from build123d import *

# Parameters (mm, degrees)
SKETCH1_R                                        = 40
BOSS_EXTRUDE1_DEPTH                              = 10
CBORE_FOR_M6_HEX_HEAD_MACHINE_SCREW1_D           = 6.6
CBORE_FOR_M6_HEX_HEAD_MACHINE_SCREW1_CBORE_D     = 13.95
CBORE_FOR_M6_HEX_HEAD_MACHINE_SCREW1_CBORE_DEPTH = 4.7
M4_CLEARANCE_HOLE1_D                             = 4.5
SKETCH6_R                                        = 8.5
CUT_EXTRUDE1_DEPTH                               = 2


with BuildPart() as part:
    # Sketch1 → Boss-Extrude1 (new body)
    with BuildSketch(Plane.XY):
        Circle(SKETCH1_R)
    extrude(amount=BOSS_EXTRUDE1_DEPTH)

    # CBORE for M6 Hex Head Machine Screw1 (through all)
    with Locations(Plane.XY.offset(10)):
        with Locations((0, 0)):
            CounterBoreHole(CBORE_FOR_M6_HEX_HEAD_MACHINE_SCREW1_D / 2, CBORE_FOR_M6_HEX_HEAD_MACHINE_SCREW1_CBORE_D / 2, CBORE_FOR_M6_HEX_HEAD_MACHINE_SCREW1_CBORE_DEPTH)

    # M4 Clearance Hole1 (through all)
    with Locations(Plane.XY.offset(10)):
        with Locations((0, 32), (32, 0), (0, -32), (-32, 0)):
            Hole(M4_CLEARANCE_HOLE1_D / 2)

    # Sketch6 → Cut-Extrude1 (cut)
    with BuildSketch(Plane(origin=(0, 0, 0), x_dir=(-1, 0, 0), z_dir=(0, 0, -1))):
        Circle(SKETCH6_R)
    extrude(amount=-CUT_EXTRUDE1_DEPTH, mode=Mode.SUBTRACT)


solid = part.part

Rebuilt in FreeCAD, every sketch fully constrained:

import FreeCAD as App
import Part
import Sketcher
from FreeCAD import Vector
Q = App.Units.Quantity

doc = App.newDocument("Part")
body = doc.addObject("PartDesign::Body", "Body")

# Sketch on XY plane
sketch1 = body.newObject("Sketcher::SketchObject", "Sketch")
sketch1.AttachmentSupport = (doc.getObject("XY_Plane"), [""])
sketch1.MapMode = "FlatFace"
sketch1.addGeometry(Part.Circle(Vector(0, 0, 0), Vector(0, 0, 1), 40), False)
sketch1.addConstraint(Sketcher.Constraint("Coincident", 0, 3, -1, 1))
sketch1.addConstraint(Sketcher.Constraint("Diameter", 0, Q("80 mm")))
pad1 = body.newObject("PartDesign::Pad", "Pad")
pad1.Profile = sketch1
pad1.Length = 10

# Sketch on XY plane
sketch2 = body.newObject("Sketcher::SketchObject", "Sketch001")
sketch2.AttachmentSupport = (doc.getObject("XY_Plane"), [""])
sketch2.MapMode = "FlatFace"
sketch2.AttachmentOffset = App.Placement(Vector(0, 0, 10), App.Rotation())
sketch2.addGeometry(Part.Circle(Vector(0, 0, 0), Vector(0, 0, 1), 3.3), False)
sketch2.addConstraint(Sketcher.Constraint("Coincident", 0, 3, -1, 1))
sketch2.addConstraint(Sketcher.Constraint("Diameter", 0, Q("6.6 mm")))
doc.recompute()
hole = body.newObject("PartDesign::Hole", "Hole")
hole.Profile = sketch2
hole.ThreadType = "None"
hole.Diameter = 6.6
hole.DepthType = "ThroughAll"
hole.HoleCutType = "Counterbore"
hole.HoleCutDiameter = 13.95
hole.HoleCutDepth = 4.7

# Sketch on XY plane
sketch3 = body.newObject("Sketcher::SketchObject", "Sketch002")
sketch3.AttachmentSupport = (doc.getObject("XY_Plane"), [""])
sketch3.MapMode = "FlatFace"
sketch3.AttachmentOffset = App.Placement(Vector(0, 0, 10), App.Rotation())
sketch3.addGeometry(Part.Circle(Vector(0, 32, 0), Vector(0, 0, 1), 2.25), False)
sketch3.addGeometry(Part.Circle(Vector(32, 0, 0), Vector(0, 0, 1), 2.25), False)
sketch3.addGeometry(Part.Circle(Vector(0, -32, 0), Vector(0, 0, 1), 2.25), False)
sketch3.addGeometry(Part.Circle(Vector(-32, 0, 0), Vector(0, 0, 1), 2.25), False)
sketch3.addConstraint(Sketcher.Constraint("Equal", 0, 1))
sketch3.addConstraint(Sketcher.Constraint("Equal", 1, 2))
sketch3.addConstraint(Sketcher.Constraint("Equal", 2, 3))
sketch3.addConstraint(Sketcher.Constraint("Symmetric", 0, 3, 2, 3, -1, 1))
sketch3.addConstraint(Sketcher.Constraint("Symmetric", 1, 3, 3, 3, -1, 1))
sketch3.addConstraint(Sketcher.Constraint("PointOnObject", 0, 3, -2))
sketch3.addConstraint(Sketcher.Constraint("PointOnObject", 1, 3, -1))
sketch3.addConstraint(Sketcher.Constraint("Diameter", 0, Q("4.5 mm")))
sketch3.addConstraint(Sketcher.Constraint("DistanceY", -1, 1, 0, 3, Q("32 mm")))
sketch3.addConstraint(Sketcher.Constraint("DistanceX", -1, 1, 1, 3, Q("32 mm")))
doc.recompute()
hole2 = body.newObject("PartDesign::Hole", "Hole001")
hole2.Profile = sketch3
hole2.ThreadType = "None"
hole2.Diameter = 4.5
hole2.DepthType = "ThroughAll"

# Sketch on XY plane
sketch4 = body.newObject("Sketcher::SketchObject", "Sketch003")
sketch4.AttachmentSupport = (doc.getObject("XY_Plane"), [""])
sketch4.MapMode = "FlatFace"
sketch4.addGeometry(Part.Circle(Vector(0, 0, 0), Vector(0, 0, 1), 8.5), False)
sketch4.addConstraint(Sketcher.Constraint("Coincident", 0, 3, -1, 1))
sketch4.addConstraint(Sketcher.Constraint("Diameter", 0, Q("17 mm")))
pocket1 = body.newObject("PartDesign::Pocket", "Pocket")
pocket1.Profile = sketch4
pocket1.Length = 2
pocket1.Reversed = True

doc.recompute()
